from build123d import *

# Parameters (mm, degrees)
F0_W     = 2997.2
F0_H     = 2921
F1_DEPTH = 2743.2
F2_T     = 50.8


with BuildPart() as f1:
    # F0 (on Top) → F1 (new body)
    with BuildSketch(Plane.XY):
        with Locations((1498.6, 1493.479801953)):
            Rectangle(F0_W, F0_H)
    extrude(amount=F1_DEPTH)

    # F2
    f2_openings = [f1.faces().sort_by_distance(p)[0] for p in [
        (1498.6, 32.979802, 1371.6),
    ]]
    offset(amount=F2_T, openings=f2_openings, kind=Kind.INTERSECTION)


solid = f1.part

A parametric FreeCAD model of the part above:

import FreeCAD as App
import Part
import Sketcher
from FreeCAD import Vector
Q = App.Units.Quantity


def faces_at(feature, points):
    """Names of the faces that lie closest to the given points."""
    faces = feature.Shape.Faces
    near = lambda p: min(range(len(faces)), key=lambda i: faces[i].distToShape(Part.Vertex(*p))[0])
    return sorted({f"Face{near(p) + 1}" for p in points})

doc = App.newDocument("Part")
body = doc.addObject("PartDesign::Body", "Body")

# Sketch on XY plane
sketch1 = body.newObject("Sketcher::SketchObject", "Sketch")
sketch1.AttachmentSupport = (doc.getObject("XY_Plane"), [""])
sketch1.MapMode = "FlatFace"
sketch1.addGeometry([
    Part.LineSegment(Vector(0, 2954, 0), Vector(0, 33, 0)),
    Part.LineSegment(Vector(0, 33, 0), Vector(2997, 33, 0)),
    Part.LineSegment(Vector(2997, 33, 0), Vector(2997, 2954, 0)),
    Part.LineSegment(Vector(2997, 2954, 0), Vector(0, 2954, 0)),
], False)
sketch1.addConstraint([
    Sketcher.Constraint("Coincident", 0, 2, 1, 1),
    Sketcher.Constraint("Coincident", 1, 2, 2, 1),
    Sketcher.Constraint("Coincident", 2, 2, 3, 1),
    Sketcher.Constraint("Coincident", 3, 2, 0, 1),
    Sketcher.Constraint("Vertical", 0),
    Sketcher.Constraint("Horizontal", 1),
    Sketcher.Constraint("Vertical", 2),
    Sketcher.Constraint("Horizontal", 3),
    Sketcher.Constraint("PointOnObject", 0, 2, -2),
    Sketcher.Constraint("DistanceX", 1, 1, 1, 2, Q("118 in")),
    Sketcher.Constraint("DistanceY", 0, 2, 0, 1, Q("115 in")),
    Sketcher.Constraint("DistanceY", -1, 1, 0, 2, Q("32.979802 mm")),
])
pad1 = body.newObject("PartDesign::Pad", "Pad")
pad1.Profile = sketch1
pad1.Length = Q("108 in")
doc.recompute()

thickness = body.newObject("PartDesign::Thickness", "Thickness")
thickness.Base = (pad1, faces_at(pad1, [(1498.6, 32.98, 1371.6)]))
thickness.Value = Q("2 in")
thickness.Reversed = False
thickness.Join = "Intersection"

doc.recompute()
